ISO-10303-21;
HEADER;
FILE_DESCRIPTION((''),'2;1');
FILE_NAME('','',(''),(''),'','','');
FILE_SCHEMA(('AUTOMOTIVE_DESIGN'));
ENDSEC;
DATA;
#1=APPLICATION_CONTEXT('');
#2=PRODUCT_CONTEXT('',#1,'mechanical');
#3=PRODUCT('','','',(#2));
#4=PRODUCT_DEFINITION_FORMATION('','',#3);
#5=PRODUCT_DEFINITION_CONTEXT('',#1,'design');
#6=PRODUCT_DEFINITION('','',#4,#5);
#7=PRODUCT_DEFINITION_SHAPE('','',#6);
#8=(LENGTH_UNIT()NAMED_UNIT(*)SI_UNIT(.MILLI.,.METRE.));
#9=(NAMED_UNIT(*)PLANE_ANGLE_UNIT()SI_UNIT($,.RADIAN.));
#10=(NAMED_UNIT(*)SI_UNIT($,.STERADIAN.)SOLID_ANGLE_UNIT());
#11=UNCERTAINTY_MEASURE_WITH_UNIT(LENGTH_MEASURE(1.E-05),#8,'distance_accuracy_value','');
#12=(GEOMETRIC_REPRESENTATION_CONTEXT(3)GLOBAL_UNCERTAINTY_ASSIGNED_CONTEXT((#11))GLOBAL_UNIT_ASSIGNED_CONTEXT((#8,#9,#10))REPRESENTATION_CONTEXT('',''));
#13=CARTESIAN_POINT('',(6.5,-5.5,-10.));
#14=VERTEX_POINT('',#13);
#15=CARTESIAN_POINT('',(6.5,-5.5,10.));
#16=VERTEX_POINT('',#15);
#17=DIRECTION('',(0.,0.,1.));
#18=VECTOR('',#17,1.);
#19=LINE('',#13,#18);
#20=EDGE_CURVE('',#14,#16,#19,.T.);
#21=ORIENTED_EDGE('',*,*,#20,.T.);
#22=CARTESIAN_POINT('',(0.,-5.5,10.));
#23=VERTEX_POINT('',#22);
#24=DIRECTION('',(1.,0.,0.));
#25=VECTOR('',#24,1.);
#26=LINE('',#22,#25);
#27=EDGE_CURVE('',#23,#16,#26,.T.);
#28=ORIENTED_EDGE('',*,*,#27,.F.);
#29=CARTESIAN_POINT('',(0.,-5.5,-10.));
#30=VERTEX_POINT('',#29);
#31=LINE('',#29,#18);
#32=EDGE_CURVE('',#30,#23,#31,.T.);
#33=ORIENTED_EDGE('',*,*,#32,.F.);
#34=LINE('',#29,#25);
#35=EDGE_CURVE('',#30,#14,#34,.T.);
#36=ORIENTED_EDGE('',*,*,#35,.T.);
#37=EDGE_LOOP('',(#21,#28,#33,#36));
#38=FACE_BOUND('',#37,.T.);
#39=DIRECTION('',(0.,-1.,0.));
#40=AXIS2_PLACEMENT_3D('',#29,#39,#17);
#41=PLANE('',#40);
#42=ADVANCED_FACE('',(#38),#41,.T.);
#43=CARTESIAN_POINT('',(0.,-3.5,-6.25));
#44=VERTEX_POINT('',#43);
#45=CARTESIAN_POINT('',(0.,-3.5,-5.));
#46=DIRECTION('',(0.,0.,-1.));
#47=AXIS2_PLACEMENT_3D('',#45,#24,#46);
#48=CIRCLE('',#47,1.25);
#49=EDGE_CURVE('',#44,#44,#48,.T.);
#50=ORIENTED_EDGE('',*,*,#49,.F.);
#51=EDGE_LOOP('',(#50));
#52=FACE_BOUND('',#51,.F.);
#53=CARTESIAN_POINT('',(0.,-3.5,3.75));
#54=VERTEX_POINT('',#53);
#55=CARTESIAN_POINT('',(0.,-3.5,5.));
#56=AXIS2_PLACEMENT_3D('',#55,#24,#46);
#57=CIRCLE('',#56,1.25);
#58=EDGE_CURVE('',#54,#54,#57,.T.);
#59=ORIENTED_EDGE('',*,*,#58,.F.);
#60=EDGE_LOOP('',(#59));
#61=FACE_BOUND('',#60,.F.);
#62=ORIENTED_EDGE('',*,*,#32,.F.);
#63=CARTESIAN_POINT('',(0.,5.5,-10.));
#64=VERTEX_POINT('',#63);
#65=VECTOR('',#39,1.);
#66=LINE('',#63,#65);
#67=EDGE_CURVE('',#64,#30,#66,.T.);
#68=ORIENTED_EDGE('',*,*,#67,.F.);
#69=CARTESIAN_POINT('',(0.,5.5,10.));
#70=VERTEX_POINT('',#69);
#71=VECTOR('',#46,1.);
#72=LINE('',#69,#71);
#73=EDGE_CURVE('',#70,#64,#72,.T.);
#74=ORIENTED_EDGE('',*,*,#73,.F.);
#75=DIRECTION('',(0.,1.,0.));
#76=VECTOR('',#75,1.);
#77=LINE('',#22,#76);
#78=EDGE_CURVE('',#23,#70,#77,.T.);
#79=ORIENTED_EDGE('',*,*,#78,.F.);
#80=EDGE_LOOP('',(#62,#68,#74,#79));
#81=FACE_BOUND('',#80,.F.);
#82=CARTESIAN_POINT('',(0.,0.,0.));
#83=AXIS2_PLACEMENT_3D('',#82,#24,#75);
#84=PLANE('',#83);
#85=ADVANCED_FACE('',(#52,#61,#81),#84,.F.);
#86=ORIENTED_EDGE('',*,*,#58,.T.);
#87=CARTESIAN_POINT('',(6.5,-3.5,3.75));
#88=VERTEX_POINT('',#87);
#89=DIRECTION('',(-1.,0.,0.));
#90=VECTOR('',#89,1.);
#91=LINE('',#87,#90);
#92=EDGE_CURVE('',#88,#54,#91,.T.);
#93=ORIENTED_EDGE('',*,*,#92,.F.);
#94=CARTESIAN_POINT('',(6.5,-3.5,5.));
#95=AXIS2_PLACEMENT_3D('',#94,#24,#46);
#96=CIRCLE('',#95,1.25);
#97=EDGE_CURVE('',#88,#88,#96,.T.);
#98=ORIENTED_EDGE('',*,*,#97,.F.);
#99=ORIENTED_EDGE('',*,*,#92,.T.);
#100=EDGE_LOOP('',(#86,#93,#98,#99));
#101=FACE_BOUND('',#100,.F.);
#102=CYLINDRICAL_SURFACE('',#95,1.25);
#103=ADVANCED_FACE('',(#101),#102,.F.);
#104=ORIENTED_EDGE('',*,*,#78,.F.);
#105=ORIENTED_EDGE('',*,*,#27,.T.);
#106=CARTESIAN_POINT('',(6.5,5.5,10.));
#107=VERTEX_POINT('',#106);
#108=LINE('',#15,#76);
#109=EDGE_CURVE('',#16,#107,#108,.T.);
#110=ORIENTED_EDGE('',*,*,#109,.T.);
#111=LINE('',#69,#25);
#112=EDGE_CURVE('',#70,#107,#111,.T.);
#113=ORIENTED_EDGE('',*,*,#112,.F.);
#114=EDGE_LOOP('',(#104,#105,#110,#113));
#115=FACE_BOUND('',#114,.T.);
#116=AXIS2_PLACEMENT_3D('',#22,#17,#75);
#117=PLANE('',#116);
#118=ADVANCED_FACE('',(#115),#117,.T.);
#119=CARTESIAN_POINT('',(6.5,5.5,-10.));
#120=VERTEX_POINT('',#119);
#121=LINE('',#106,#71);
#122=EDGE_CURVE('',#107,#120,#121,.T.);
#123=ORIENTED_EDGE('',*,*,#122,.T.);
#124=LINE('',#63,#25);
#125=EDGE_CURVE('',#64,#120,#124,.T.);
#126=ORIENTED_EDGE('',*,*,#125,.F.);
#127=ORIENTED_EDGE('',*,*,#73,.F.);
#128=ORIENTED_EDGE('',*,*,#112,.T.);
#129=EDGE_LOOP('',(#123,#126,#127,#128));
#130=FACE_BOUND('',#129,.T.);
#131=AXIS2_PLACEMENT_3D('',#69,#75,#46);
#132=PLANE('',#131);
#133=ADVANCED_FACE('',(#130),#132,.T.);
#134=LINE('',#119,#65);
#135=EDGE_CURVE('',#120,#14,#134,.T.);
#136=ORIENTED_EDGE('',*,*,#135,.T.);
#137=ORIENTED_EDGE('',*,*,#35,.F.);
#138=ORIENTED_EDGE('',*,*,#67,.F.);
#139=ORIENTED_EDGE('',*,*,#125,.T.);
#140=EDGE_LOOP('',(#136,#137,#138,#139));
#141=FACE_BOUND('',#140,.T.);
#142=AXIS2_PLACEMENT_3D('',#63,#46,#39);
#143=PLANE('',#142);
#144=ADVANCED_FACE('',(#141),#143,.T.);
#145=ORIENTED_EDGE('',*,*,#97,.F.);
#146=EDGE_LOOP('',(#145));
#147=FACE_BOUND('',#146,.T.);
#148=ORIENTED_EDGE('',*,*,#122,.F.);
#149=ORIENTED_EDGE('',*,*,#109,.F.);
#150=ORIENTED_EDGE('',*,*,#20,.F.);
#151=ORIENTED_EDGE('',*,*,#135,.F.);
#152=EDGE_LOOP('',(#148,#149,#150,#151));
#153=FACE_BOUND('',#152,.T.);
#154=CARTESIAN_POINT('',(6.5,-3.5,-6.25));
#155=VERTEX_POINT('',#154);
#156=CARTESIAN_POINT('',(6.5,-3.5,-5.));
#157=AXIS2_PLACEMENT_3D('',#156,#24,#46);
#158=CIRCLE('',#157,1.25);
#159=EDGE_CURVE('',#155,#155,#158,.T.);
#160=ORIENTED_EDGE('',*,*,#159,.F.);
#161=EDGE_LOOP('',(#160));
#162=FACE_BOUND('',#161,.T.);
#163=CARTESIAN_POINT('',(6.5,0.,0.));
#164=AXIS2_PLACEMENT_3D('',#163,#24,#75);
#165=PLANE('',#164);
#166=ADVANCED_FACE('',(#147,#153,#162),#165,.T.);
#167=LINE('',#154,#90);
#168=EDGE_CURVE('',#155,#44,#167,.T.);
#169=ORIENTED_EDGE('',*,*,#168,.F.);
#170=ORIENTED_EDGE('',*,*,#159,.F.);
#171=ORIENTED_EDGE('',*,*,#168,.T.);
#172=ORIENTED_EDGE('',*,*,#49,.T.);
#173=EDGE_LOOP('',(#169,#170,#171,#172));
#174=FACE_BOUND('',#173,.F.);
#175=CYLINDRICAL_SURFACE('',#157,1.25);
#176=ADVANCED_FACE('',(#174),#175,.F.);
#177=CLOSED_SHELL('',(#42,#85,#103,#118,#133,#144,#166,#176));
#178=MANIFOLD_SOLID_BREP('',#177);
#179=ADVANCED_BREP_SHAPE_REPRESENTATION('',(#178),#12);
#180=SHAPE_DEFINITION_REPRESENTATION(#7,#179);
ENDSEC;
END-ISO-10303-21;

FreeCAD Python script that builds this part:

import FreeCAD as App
import Part
import Sketcher
Q = App.Units.Quantity


def add_polygon(sketch, points):
    """Adds a closed chain of lines whose ends are joined by coincident constraints."""
    first, n = sketch.GeometryCount, len(points)
    for a, b in zip(points, points[1:] + points[:1]):
        sketch.addGeometry(Part.LineSegment(App.Vector(*a, 0), App.Vector(*b, 0)), False)
    for i in range(n):
        sketch.addConstraint(Sketcher.Constraint("Coincident", first + i, 2, first + (i + 1) % n, 1))

doc = App.newDocument("Part")
body = doc.addObject("PartDesign::Body", "Body")

sketch1 = doc.addObject("Sketcher::SketchObject", "Sketch")
body.addObject(sketch1)
sketch1.AttachmentSupport = (doc.YZ_Plane, [""])
sketch1.MapMode = "FlatFace"
add_polygon(sketch1, [(6, 10), (-6, 10), (-6, -10), (6, -10)])
sketch1.addConstraint(Sketcher.Constraint("Horizontal", 0))
sketch1.addConstraint(Sketcher.Constraint("Vertical", 1))
sketch1.addConstraint(Sketcher.Constraint("Horizontal", 2))
sketch1.addConstraint(Sketcher.Constraint("Vertical", 3))
sketch1.addConstraint(Sketcher.Constraint("Symmetric", 0, 2, 2, 2, -1, 1))
sketch1.addConstraint(Sketcher.Constraint("DistanceX", 0, 2, 0, 1, Q("11 mm")))
sketch1.addConstraint(Sketcher.Constraint("DistanceY", 1, 2, 1, 1, Q("20 mm")))
pad1 = doc.addObject("PartDesign::Pad", "Pad")
body.addObject(pad1)
pad1.Profile = sketch1
pad1.Length = 6.5

sketch2 = doc.addObject("Sketcher::SketchObject", "Sketch001")
body.addObject(sketch2)
sketch2.AttachmentSupport = (doc.YZ_Plane, [""])
sketch2.MapMode = "FlatFace"
sketch2.AttachmentOffset = App.Placement(App.Vector(0, 0, 6.5), App.Rotation())
sketch2.addGeometry(Part.Circle(App.Vector(-3.5, 5, 0), App.Vector(0, 0, 1), 1.2), False)
sketch2.addGeometry(Part.Circle(App.Vector(-3.5, -5, 0), App.Vector(0, 0, 1), 1.2), False)
sketch2.addConstraint(Sketcher.Constraint("Equal", 0, 1))
sketch2.addConstraint(Sketcher.Constraint("Symmetric", 0, 3, 1, 3, -1))
sketch2.addConstraint(Sketcher.Constraint("Diameter", 0, Q("2.5 mm")))
sketch2.addConstraint(Sketcher.Constraint("DistanceY", -1, 1, 0, 3, Q("5 mm")))
sketch2.addConstraint(Sketcher.Constraint("DistanceX", 0, 3, -1, 1, Q("3.5 mm")))
pocket1 = doc.addObject("PartDesign::Pocket", "Pocket")
body.addObject(pocket1)
pocket1.Profile = sketch2
pocket1.Type = "ThroughAll"

doc.recompute()
